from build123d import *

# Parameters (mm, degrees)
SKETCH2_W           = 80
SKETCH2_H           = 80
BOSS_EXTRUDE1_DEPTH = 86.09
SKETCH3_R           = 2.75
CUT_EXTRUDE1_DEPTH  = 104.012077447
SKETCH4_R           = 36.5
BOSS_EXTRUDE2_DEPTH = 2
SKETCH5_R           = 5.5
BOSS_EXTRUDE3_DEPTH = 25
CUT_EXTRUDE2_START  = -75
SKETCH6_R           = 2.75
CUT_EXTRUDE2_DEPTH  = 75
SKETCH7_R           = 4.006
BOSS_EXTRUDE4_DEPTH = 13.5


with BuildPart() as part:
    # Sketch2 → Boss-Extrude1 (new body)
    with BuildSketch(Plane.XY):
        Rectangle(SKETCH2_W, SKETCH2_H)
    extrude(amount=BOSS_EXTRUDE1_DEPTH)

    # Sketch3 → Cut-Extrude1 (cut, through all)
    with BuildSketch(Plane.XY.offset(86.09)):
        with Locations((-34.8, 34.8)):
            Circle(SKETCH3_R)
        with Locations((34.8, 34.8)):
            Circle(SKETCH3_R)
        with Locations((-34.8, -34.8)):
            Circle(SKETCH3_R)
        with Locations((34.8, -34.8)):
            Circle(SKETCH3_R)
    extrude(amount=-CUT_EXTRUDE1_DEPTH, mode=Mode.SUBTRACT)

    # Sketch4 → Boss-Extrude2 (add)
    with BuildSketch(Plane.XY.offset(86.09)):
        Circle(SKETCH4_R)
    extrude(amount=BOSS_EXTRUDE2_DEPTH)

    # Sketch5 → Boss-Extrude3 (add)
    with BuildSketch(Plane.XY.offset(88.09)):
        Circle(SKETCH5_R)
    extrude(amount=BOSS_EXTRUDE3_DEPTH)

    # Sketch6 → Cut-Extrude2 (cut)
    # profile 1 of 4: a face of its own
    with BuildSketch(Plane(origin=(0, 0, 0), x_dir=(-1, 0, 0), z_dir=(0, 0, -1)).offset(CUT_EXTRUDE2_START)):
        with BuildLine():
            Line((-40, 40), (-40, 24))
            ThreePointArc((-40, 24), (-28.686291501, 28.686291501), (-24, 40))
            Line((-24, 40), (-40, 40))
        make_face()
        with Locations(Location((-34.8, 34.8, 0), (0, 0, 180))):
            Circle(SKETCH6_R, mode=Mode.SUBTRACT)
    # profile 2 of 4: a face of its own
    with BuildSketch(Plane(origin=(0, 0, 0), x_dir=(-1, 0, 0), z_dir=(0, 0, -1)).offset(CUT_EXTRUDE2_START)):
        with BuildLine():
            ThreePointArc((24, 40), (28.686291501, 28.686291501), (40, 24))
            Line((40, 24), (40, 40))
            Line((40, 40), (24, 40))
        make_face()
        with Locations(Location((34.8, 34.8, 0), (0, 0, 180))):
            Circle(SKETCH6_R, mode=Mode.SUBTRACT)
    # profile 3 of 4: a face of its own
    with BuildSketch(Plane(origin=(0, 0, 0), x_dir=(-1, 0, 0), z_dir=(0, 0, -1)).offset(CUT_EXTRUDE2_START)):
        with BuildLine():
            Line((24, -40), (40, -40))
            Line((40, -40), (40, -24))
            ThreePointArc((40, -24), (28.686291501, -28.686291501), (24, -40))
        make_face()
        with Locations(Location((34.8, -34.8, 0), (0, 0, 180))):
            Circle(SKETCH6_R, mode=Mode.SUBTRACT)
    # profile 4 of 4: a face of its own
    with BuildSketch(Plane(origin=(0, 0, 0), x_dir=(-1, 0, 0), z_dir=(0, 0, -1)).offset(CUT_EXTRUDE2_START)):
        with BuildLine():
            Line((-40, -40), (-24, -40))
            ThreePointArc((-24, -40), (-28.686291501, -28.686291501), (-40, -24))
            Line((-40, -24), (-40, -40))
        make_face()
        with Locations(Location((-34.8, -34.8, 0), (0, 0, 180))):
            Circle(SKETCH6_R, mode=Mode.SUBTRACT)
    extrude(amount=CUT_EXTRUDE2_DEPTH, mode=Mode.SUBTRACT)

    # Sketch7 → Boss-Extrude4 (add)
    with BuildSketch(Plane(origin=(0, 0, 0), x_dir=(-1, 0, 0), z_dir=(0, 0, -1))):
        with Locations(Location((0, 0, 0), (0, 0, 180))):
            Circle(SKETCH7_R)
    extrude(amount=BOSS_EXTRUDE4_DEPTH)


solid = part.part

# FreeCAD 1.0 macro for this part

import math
import FreeCAD as App
import Part
import Sketcher
from FreeCAD import Vector
Q = App.Units.Quantity


def add_polygon(sketch, points):
    """Adds a closed chain of lines whose ends are joined by coincident constraints."""
    first, n = sketch.GeometryCount, len(points)
    for a, b in zip(points, points[1:] + points[:1]):
        sketch.addGeometry(Part.LineSegment(App.Vector(*a, 0), App.Vector(*b, 0)), False)
    for i in range(n):
        sketch.addConstraint(Sketcher.Constraint("Coincident", first + i, 2, first + (i + 1) % n, 1))

doc = App.newDocument("Part")
body = doc.addObject("PartDesign::Body", "Body")

sketch1 = body.newObject("Sketcher::SketchObject", "Sketch")
sketch1.AttachmentSupport = (doc.getObject("XY_Plane"), [""])
sketch1.MapMode = "FlatFace"
add_polygon(sketch1, [(-40, 40), (-40, -40), (40, -40), (40, 40)])
sketch1.addConstraint([
    Sketcher.Constraint("Vertical", 0),
    Sketcher.Constraint("Horizontal", 1),
    Sketcher.Constraint("Vertical", 2),
    Sketcher.Constraint("Horizontal", 3),
    Sketcher.Constraint("Symmetric", 0, 2, 2, 2, -1, 1),
    Sketcher.Constraint("Equal", 3, 0),
    Sketcher.Constraint("DistanceX", 1, 1, 1, 2, Q("80 mm")),
])
pad1 = body.newObject("PartDesign::Pad", "Pad")
pad1.Profile = sketch1
pad1.Length = 86.09

sketch2 = body.newObject("Sketcher::SketchObject", "Sketch001")
sketch2.AttachmentSupport = (doc.getObject("XY_Plane"), [""])
sketch2.MapMode = "FlatFace"
sketch2.AttachmentOffset = App.Placement(Vector(0, 0, 86.09), App.Rotation())
sketch2.addGeometry([
    Part.Circle(Vector(-34.8, 34.8, 0), Vector(0, 0, 1), 2.75),
    Part.Circle(Vector(34.8, 34.8, 0), Vector(0, 0, 1), 2.75),
    Part.Circle(Vector(-34.8, -34.8, 0), Vector(0, 0, 1), 2.75),
    Part.Circle(Vector(34.8, -34.8, 0), Vector(0, 0, 1), 2.75),
], False)
sketch2.addConstraint([
    Sketcher.Constraint("Equal", 0, 1),
    Sketcher.Constraint("Equal", 1, 2),
    Sketcher.Constraint("Equal", 2, 3),
    Sketcher.Constraint("Symmetric", 1, 3, 2, 3, -1, 1),
    Sketcher.Constraint("Symmetric", 0, 3, 3, 3, -1, 1),
    Sketcher.Constraint("Symmetric", 0, 3, 1, 3, -2),
    Sketcher.Constraint("Diameter", 0, Q("5.5 mm")),
    Sketcher.Constraint("DistanceX", 0, 3, -1, 1, Q("34.8 mm")),
    Sketcher.Constraint("DistanceY", -1, 1, 0, 3, Q("34.8 mm")),
])
pocket1 = body.newObject("PartDesign::Pocket", "Pocket")
pocket1.Profile = sketch2
pocket1.Type = "ThroughAll"

sketch3 = body.newObject("Sketcher::SketchObject", "Sketch002")
sketch3.AttachmentSupport = (doc.getObject("XY_Plane"), [""])
sketch3.MapMode = "FlatFace"
sketch3.AttachmentOffset = App.Placement(Vector(0, 0, 86.09), App.Rotation())
sketch3.addGeometry(Part.Circle(Vector(0, 0, 0), Vector(0, 0, 1), 36.5), False)
sketch3.addConstraint([
    Sketcher.Constraint("Coincident", 0, 3, -1, 1),
    Sketcher.Constraint("Diameter", 0, Q("73 mm")),
])
pad2 = body.newObject("PartDesign::Pad", "Pad001")
pad2.Profile = sketch3
pad2.Length = 2

sketch4 = body.newObject("Sketcher::SketchObject", "Sketch003")
sketch4.AttachmentSupport = (doc.getObject("XY_Plane"), [""])
sketch4.MapMode = "FlatFace"
sketch4.AttachmentOffset = App.Placement(Vector(0, 0, 88.09), App.Rotation())
sketch4.addGeometry(Part.Circle(Vector(0, 0, 0), Vector(0, 0, 1), 5.5), False)
sketch4.addConstraint([
    Sketcher.Constraint("Coincident", 0, 3, -1, 1),
    Sketcher.Constraint("Diameter", 0, Q("11 mm")),
])
pad3 = body.newObject("PartDesign::Pad", "Pad002")
pad3.Profile = sketch4
pad3.Length = 25

sketch5 = body.newObject("Sketcher::SketchObject", "Sketch004")
sketch5.AttachmentSupport = (doc.getObject("XY_Plane"), [""])
sketch5.MapMode = "FlatFace"
sketch5.AttachmentOffset = App.Placement(Vector(0, 0, 75), App.Rotation())
sketch5.addGeometry([
    Part.LineSegment(Vector(40, 40, 0), Vector(40, 24, 0)),
    Part.ArcOfCircle(Part.Circle(Vector(40, 40, 0), Vector(0, 0, 1), 16), math.radians(180), math.radians(270)),
    Part.LineSegment(Vector(24, 40, 0), Vector(40, 40, 0)),
    Part.Circle(Vector(34.8, 34.8, 0), Vector(0, 0, 1), 2.75),
    Part.ArcOfCircle(Part.Circle(Vector(-40, 40, 0), Vector(0, 0, 1), 16), math.radians(-90), math.radians(0)),
    Part.LineSegment(Vector(-40, 24, 0), Vector(-40, 40, 0)),
    Part.LineSegment(Vector(-40, 40, 0), Vector(-24, 40, 0)),
    Part.Circle(Vector(-34.8, 34.8, 0), Vector(0, 0, 1), 2.75),
    Part.LineSegment(Vector(-24, -40, 0), Vector(-40, -40, 0)),
    Part.LineSegment(Vector(-40, -40, 0), Vector(-40, -24, 0)),
    Part.ArcOfCircle(Part.Circle(Vector(-40, -40, 0), Vector(0, 0, 1), 16), math.radians(0), math.radians(90)),
    Part.Circle(Vector(-34.8, -34.8, 0), Vector(0, 0, 1), 2.75),
    Part.LineSegment(Vector(40, -40, 0), Vector(24, -40, 0)),
    Part.ArcOfCircle(Part.Circle(Vector(40, -40, 0), Vector(0, 0, 1), 16), math.radians(90), math.radians(180)),
    Part.LineSegment(Vector(40, -24, 0), Vector(40, -40, 0)),
    Part.Circle(Vector(34.8, -34.8, 0), Vector(0, 0, 1), 2.75),
], False)
sketch5.addConstraint([
    Sketcher.Constraint("Coincident", 0, 2, 1, 2),
    Sketcher.Constraint("Coincident", 1, 1, 2, 1),
    Sketcher.Constraint("Coincident", 2, 2, 0, 1),
    Sketcher.Constraint("Coincident", 4, 1, 5, 1),
    Sketcher.Constraint("Coincident", 5, 2, 6, 1),
    Sketcher.Constraint("Coincident", 6, 2, 4, 2),
    Sketcher.Constraint("Coincident", 8, 2, 9, 1),
    Sketcher.Constraint("Coincident", 9, 2, 10, 2),
    Sketcher.Constraint("Coincident", 10, 1, 8, 1),
    Sketcher.Constraint("Coincident", 12, 2, 13, 2),
    Sketcher.Constraint("Coincident", 13, 1, 14, 1),
    Sketcher.Constraint("Coincident", 14, 2, 12, 1),
    Sketcher.Constraint("Vertical", 0),
    Sketcher.Constraint("Horizontal", 2),
    Sketcher.Constraint("Vertical", 5),
    Sketcher.Constraint("Horizontal", 6),
    Sketcher.Constraint("Horizontal", 8),
    Sketcher.Constraint("Vertical", 9),
    Sketcher.Constraint("Horizontal", 12),
    Sketcher.Constraint("Vertical", 14),
    Sketcher.Constraint("Coincident", 2, 2, 1, 3),
    Sketcher.Constraint("Coincident", 5, 2, 4, 3),
    Sketcher.Constraint("Coincident", 8, 2, 10, 3),
    Sketcher.Constraint("Coincident", 14, 2, 13, 3),
    Sketcher.Constraint("Equal", 1, 4),
    Sketcher.Constraint("Equal", 3, 7),
    Sketcher.Constraint("Equal", 4, 10),
    Sketcher.Constraint("Equal", 7, 11),
    Sketcher.Constraint("Equal", 10, 13),
    Sketcher.Constraint("Equal", 11, 15),
    Sketcher.Constraint("Symmetric", 1, 3, 10, 3, -1, 1),
    Sketcher.Constraint("Symmetric", 3, 3, 11, 3, -1, 1),
    Sketcher.Constraint("Symmetric", 4, 3, 13, 3, -1, 1),
    Sketcher.Constraint("Symmetric", 7, 3, 15, 3, -1, 1),
    Sketcher.Constraint("Symmetric", 1, 3, 4, 3, -2),
    Sketcher.Constraint("Symmetric", 3, 3, 7, 3, -2),
    Sketcher.Constraint("Radius", 1, Q("16 mm")),
    Sketcher.Constraint("Diameter", 3, Q("5.5 mm")),
    Sketcher.Constraint("DistanceX", -1, 1, 1, 3, Q("40 mm")),
    Sketcher.Constraint("DistanceY", -1, 1, 1, 3, Q("40 mm")),
    Sketcher.Constraint("DistanceX", -1, 1, 3, 3, Q("34.8 mm")),
    Sketcher.Constraint("DistanceY", -1, 1, 3, 3, Q("34.8 mm")),
])
pocket2 = body.newObject("PartDesign::Pocket", "Pocket001")
pocket2.Profile = sketch5
pocket2.Length = 75

sketch6 = body.newObject("Sketcher::SketchObject", "Sketch005")
sketch6.AttachmentSupport = (doc.getObject("XY_Plane"), [""])
sketch6.MapMode = "FlatFace"
sketch6.addGeometry(Part.Circle(Vector(0, 0, 0), Vector(0, 0, 1), 4.006), False)
sketch6.addConstraint([
    Sketcher.Constraint("Coincident", 0, 3, -1, 1),
    Sketcher.Constraint("Diameter", 0, Q("8.012 mm")),
])
pad4 = body.newObject("PartDesign::Pad", "Pad003")
pad4.Profile = sketch6
pad4.Length = 13.5
pad4.Reversed = True

doc.recompute()
